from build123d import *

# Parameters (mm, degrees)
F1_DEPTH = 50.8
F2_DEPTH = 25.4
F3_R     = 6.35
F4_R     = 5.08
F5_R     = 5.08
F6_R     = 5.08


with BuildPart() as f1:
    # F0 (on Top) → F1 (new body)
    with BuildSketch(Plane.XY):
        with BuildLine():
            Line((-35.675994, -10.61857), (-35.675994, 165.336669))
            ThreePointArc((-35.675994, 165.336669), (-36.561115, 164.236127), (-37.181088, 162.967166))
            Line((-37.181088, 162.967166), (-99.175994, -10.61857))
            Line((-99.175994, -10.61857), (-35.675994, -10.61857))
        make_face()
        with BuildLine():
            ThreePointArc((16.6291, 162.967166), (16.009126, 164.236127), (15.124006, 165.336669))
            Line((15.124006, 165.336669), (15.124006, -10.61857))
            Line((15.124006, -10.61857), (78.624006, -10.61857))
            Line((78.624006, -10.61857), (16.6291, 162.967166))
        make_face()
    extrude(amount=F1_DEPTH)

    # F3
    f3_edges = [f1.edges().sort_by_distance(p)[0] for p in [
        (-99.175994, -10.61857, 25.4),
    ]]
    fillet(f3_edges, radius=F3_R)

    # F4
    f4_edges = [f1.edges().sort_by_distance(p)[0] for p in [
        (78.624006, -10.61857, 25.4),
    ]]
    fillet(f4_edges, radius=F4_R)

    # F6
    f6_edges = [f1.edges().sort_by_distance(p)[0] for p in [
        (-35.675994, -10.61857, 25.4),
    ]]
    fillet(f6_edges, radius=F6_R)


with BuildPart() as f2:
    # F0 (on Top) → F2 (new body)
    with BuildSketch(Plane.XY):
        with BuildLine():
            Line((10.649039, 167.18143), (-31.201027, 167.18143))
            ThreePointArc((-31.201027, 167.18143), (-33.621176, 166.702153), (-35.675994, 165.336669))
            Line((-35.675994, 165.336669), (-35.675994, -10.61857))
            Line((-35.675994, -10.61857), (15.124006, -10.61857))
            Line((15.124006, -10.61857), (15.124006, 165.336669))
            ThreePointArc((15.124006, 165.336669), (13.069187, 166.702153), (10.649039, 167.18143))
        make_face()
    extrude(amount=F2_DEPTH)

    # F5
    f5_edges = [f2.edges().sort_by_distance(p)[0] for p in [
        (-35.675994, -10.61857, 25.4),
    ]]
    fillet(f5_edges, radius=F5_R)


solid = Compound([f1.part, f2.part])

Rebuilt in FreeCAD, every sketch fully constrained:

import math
import FreeCAD as App
import Part
import Sketcher
Q = App.Units.Quantity


def edges_at(feature, points):
    """Names of the edges that pass closest to the given points."""
    edges = feature.Shape.Edges
    near = lambda p: min(range(len(edges)), key=lambda i: edges[i].distToShape(Part.Vertex(*p))[0])
    return sorted({f"Edge{near(p) + 1}" for p in points})

doc = App.newDocument("Part")
body = doc.addObject("PartDesign::Body", "Body")
body.AllowCompound = True

# Sketch on XY plane
sketch1 = body.newObject("Sketcher::SketchObject", "Sketch")
sketch1.AttachmentSupport = (doc.getObject("XY_Plane"), [""])
sketch1.MapMode = "FlatFace"
sketch1.addGeometry([
    Part.LineSegment(App.Vector(-35.675994, -10.61857, 0), App.Vector(-35.675994, 165.336669, 0)),  # 0
    Part.ArcOfCircle(Part.Circle(App.Vector(-31.201032, 160.831435, 0), App.Vector(0, 0, 1), 6.349994), math.radians(134.806861), math.radians(160.346206)),  # 1
    Part.LineSegment(App.Vector(-37.181088, 162.967166, 0), App.Vector(-99.175994, -10.61857, 0)),  # 2
    Part.LineSegment(App.Vector(-99.175994, -10.61857, 0), App.Vector(-35.675994, -10.61857, 0)),  # 3
    Part.ArcOfCircle(Part.Circle(App.Vector(10.649015, 160.831417, 0), App.Vector(0, 0, 1), 6.350027), math.radians(19.653862), math.radians(45.193071)),  # 4
    Part.LineSegment(App.Vector(15.124006, 165.336669, 0), App.Vector(15.124006, -10.61857, 0)),  # 5
    Part.LineSegment(App.Vector(15.124006, -10.61857, 0), App.Vector(78.624006, -10.61857, 0)),  # 6
    Part.LineSegment(App.Vector(78.624006, -10.61857, 0), App.Vector(16.6291, 162.967166, 0)),  # 7
], False)
sketch1.addConstraint([
    Sketcher.Constraint("Coincident", 0, 2, 1, 1),
    Sketcher.Constraint("Coincident", 1, 2, 2, 1),
    Sketcher.Constraint("Coincident", 2, 2, 3, 1),
    Sketcher.Constraint("Coincident", 3, 2, 0, 1),
    Sketcher.Constraint("Coincident", 4, 2, 5, 1),
    Sketcher.Constraint("Coincident", 5, 2, 6, 1),
    Sketcher.Constraint("Coincident", 6, 2, 7, 1),
    Sketcher.Constraint("Coincident", 7, 2, 4, 1),
    Sketcher.Constraint("Vertical", 0),
    Sketcher.Constraint("Horizontal", 3),
    Sketcher.Constraint("Vertical", 5),
    Sketcher.Constraint("Horizontal", 6),
    Sketcher.Constraint("DistanceX", 3, 1, 3, 2, Q("2.5 in")),
    Sketcher.Constraint("DistanceX", 6, 1, 6, 2, Q("2.5 in")),
    Sketcher.Constraint("DistanceX", 0, 2, 4, 2, Q("2 in")),
    Sketcher.Constraint("DistanceY", 2, 2, 1, 3, Q("6.7500002 in")),
    Sketcher.Constraint("DistanceY", 5, 2, 1, 3, Q("6.7500002 in")),
    Sketcher.Constraint("Radius", 1, 6.349994),
    Sketcher.Constraint("Radius", 4, 6.350027),
    Sketcher.Constraint("DistanceY", 0, 1, 0, 2, 175.955239),
    Sketcher.Constraint("DistanceY", 5, 2, 5, 1, 175.955239),
    Sketcher.Constraint("DistanceX", -1, 1, 7, 2, 16.6291),
    Sketcher.Constraint("DistanceX", 1, 3, -1, 1, 31.201032),
    Sketcher.Constraint("DistanceY", -1, 1, 0, 2, 165.336669),
    Sketcher.Constraint("DistanceX", 0, 2, 4, 3, 46.325009),
    Sketcher.Constraint("DistanceY", 1, 3, 1, 2, 2.135731),
])
pad1 = body.newObject("PartDesign::Pad", "Pad")
pad1.Profile = sketch1
pad1.Length = Q("2 in")
doc.recompute()

fillet = body.newObject("PartDesign::Fillet", "Fillet")
fillet.Base = (pad1, edges_at(pad1, [(-99.176, -10.619, 25.4)]))
fillet.Radius = Q("0.25 in")
doc.recompute()

fillet2 = body.newObject("PartDesign::Fillet", "Fillet001")
fillet2.Base = (fillet, edges_at(fillet, [(78.624, -10.619, 25.4)]))
fillet2.Radius = Q("0.2 in")
doc.recompute()

fillet3 = body.newObject("PartDesign::Fillet", "Fillet002")
fillet3.Base = (fillet2, edges_at(fillet2, [(-35.676, -10.619, 25.4)]))
fillet3.Radius = Q("0.2 in")
body2 = doc.addObject("PartDesign::Body", "Body001")

# Sketch on XY plane
sketch2 = body2.newObject("Sketcher::SketchObject", "Sketch001")
sketch2.AttachmentSupport = (doc.getObject("XY_Plane001"), [""])
sketch2.MapMode = "FlatFace"
sketch2.addGeometry([
    Part.LineSegment(App.Vector(10.649039, 167.18143, 0), App.Vector(-31.201027, 167.18143, 0)),  # 0
    Part.ArcOfCircle(Part.Circle(App.Vector(-31.20103, 160.831435, 0), App.Vector(0, 0, 1), 6.349995), math.radians(89.999973), math.radians(134.806872)),  # 1
    Part.LineSegment(App.Vector(-35.675994, 165.336669, 0), App.Vector(-35.675994, -10.61857, 0)),  # 2
    Part.LineSegment(App.Vector(-35.675994, -10.61857, 0), App.Vector(15.124006, -10.61857, 0)),  # 3
    Part.LineSegment(App.Vector(15.124006, -10.61857, 0), App.Vector(15.124006, 165.336669, 0)),  # 4
    Part.ArcOfCircle(Part.Circle(App.Vector(10.64904, 160.83143, 0), App.Vector(0, 0, 1), 6.35), math.radians(45.193146), math.radians(90.00001)),  # 5
], False)
sketch2.addConstraint([
    Sketcher.Constraint("Tangent", 0, 2, 1, 1),
    Sketcher.Constraint("Coincident", 1, 2, 2, 1),
    Sketcher.Constraint("Coincident", 2, 2, 3, 1),
    Sketcher.Constraint("Coincident", 3, 2, 4, 1),
    Sketcher.Constraint("Coincident", 4, 2, 5, 1),
    Sketcher.Constraint("Tangent", 5, 2, 0, 1),
    Sketcher.Constraint("Horizontal", 0),
    Sketcher.Constraint("Vertical", 2),
    Sketcher.Constraint("Horizontal", 3),
    Sketcher.Constraint("Vertical", 4),
    Sketcher.Constraint("Horizontal", 1, 2, 4, 2),
    Sketcher.Constraint("DistanceX", 3, 1, 3, 2, Q("2 in")),
    Sketcher.Constraint("Radius", 5, Q("0.25 in")),
    Sketcher.Constraint("DistanceY", 2, 2, 0, 2, Q("7 in")),
    Sketcher.Constraint("Radius", 1, 6.349995),
    Sketcher.Constraint("DistanceY", 2, 2, 2, 1, 175.955239),
    Sketcher.Constraint("DistanceX", 1, 3, -1, 1, 31.20103),
    Sketcher.Constraint("DistanceY", -1, 1, 5, 3, 160.83143),
])
pad2 = body2.newObject("PartDesign::Pad", "Pad001")
pad2.Profile = sketch2
pad2.Length = Q("1 in")
doc.recompute()

fillet4 = body2.newObject("PartDesign::Fillet", "Fillet003")
fillet4.Base = (pad2, edges_at(pad2, [(-35.676, -10.619, 12.7)]))
fillet4.Radius = Q("0.2 in")

doc.recompute()
